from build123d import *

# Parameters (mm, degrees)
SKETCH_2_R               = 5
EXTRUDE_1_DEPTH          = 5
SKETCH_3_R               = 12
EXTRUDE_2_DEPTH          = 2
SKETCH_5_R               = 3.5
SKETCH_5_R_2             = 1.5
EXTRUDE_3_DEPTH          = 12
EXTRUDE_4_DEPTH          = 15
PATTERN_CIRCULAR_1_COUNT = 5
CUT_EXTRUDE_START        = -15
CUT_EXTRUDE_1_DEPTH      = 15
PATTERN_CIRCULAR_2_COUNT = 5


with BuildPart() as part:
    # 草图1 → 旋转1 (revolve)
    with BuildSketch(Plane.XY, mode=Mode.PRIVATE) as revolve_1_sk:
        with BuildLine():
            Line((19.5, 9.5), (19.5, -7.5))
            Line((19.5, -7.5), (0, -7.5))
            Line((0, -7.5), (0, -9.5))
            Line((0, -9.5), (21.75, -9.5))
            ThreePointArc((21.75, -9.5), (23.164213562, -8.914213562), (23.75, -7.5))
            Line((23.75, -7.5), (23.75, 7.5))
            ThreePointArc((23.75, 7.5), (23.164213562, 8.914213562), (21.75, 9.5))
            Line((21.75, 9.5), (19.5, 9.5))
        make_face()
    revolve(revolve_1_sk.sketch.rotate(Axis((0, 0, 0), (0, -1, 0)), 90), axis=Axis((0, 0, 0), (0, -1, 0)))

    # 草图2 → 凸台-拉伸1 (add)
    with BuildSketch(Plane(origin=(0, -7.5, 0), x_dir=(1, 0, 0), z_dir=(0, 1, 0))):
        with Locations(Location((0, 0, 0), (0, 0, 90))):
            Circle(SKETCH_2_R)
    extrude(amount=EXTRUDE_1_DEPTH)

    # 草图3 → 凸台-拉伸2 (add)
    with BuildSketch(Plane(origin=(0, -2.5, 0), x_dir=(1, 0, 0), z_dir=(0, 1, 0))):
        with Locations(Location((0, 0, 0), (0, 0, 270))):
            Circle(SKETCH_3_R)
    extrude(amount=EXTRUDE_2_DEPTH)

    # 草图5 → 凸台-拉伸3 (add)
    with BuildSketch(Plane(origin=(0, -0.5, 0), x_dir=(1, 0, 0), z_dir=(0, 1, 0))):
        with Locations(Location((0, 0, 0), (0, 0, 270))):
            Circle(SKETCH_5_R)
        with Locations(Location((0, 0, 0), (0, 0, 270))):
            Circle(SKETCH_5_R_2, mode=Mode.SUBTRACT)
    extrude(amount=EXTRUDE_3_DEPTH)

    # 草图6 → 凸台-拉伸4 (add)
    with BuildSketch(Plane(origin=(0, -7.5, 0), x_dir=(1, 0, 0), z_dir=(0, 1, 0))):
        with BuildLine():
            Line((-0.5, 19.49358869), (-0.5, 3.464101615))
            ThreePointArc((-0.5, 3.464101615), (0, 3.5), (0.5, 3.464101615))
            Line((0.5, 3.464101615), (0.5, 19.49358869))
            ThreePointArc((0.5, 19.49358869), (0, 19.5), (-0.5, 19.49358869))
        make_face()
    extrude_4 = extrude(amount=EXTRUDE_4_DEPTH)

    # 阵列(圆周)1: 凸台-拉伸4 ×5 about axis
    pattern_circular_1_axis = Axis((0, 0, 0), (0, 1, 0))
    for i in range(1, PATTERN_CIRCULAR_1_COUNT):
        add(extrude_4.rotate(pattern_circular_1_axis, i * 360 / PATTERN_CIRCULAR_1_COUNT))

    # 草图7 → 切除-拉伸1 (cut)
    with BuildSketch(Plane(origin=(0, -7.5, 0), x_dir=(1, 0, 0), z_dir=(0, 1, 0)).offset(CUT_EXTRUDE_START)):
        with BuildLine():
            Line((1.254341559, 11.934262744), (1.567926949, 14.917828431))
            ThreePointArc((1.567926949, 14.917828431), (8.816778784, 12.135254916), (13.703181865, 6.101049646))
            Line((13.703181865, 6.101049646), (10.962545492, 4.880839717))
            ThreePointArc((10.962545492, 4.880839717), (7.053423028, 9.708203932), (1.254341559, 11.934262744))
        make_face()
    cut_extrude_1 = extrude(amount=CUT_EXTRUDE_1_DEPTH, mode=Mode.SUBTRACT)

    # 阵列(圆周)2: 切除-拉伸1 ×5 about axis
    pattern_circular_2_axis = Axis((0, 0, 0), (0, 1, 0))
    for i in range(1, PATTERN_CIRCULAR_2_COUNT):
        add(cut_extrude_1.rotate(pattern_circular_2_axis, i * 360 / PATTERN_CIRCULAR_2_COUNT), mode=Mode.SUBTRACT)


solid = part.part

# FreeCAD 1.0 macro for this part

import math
import FreeCAD as App
import Part
import Sketcher
Q = App.Units.Quantity

doc = App.newDocument("Part")
params = doc.addObject("Spreadsheet::Sheet", "Params")
for row, (alias, value) in enumerate([
    ("sketch1_radius", "2 mm"),
    ("sketch1_height", "17 mm"),
    ("sketch1_width", "19.5 mm"),
    ("sketch1_width2", "21.75 mm"),
    ("revolution_angle", "360 deg"),
    ("sketch2_diameter", "10 mm"),
    ("pad1_length", "5 mm"),
    ("sketch3_diameter", "24 mm"),
    ("pad2_length", "2 mm"),
    ("sketch4_diameter", "7 mm"),
    ("sketch4_diameter2", "3 mm"),
    ("pad3_length", "12 mm"),
    ("sketch5_radius", "3.5 mm"),
    ("sketch5_radius2", "19.500001 mm"),
    ("pad4_length", "15 mm"),
    ("sketch6_radius", "12 mm"),
    ("sketch6_radius2", "15 mm"),
    ("pocket1_length", "15 mm"),
], start=1):
    params.set(f"A{row}", alias)
    params.set(f"B{row}", "=" + value)
    params.setAlias(f"B{row}", alias)

body = doc.addObject("PartDesign::Body", "Body")

sketch1 = body.newObject("Sketcher::SketchObject", "Sketch")
sketch1.AttachmentSupport = (doc.getObject("XY_Plane"), [""])
sketch1.MapMode = "FlatFace"
sketch1.addGeometry([
    Part.LineSegment(App.Vector(19.5, 9.5, 0), App.Vector(19.5, -7.5, 0)),
    Part.LineSegment(App.Vector(19.5, -7.5, 0), App.Vector(0, -7.5, 0)),
    Part.LineSegment(App.Vector(0, -7.5, 0), App.Vector(0, -9.5, 0)),
    Part.LineSegment(App.Vector(0, -9.5, 0), App.Vector(21.8, -9.5, 0)),
    Part.ArcOfCircle(Part.Circle(App.Vector(21.7, -7.5, 0), App.Vector(0, 0, 1), 2), math.radians(-90), math.radians(0)),
    Part.LineSegment(App.Vector(23.8, -7.5, 0), App.Vector(23.8, 7.5, 0)),
    Part.ArcOfCircle(Part.Circle(App.Vector(21.7, 7.5, 0), App.Vector(0, 0, 1), 2), math.radians(0), math.radians(90)),
    Part.LineSegment(App.Vector(21.8, 9.5, 0), App.Vector(19.5, 9.5, 0)),
], False)
sketch1.addConstraint([
    Sketcher.Constraint("Coincident", 0, 2, 1, 1),
    Sketcher.Constraint("Coincident", 1, 2, 2, 1),
    Sketcher.Constraint("Coincident", 2, 2, 3, 1),
    Sketcher.Constraint("Tangent", 3, 2, 4, 1),
    Sketcher.Constraint("Tangent", 4, 2, 5, 1),
    Sketcher.Constraint("Tangent", 5, 2, 6, 1),
    Sketcher.Constraint("Tangent", 6, 2, 7, 1),
    Sketcher.Constraint("Coincident", 7, 2, 0, 1),
    Sketcher.Constraint("Vertical", 0),
    Sketcher.Constraint("Horizontal", 1),
    Sketcher.Constraint("Vertical", 2),
    Sketcher.Constraint("Horizontal", 3),
    Sketcher.Constraint("Vertical", 5),
    Sketcher.Constraint("Horizontal", 7),
    Sketcher.Constraint("Equal", 4, 6),
    Sketcher.Constraint("PointOnObject", 1, 2, -2),
    Sketcher.Constraint("Horizontal", 4, 3, 0, 2),
    Sketcher.Constraint("Radius", 4, Q("2 mm")),
    Sketcher.Constraint("DistanceY", 0, 2, 0, 1, Q("17 mm")),
    Sketcher.Constraint("DistanceX", 1, 2, 1, 1, Q("19.5 mm")),
    Sketcher.Constraint("DistanceX", 3, 1, 3, 2, Q("21.75 mm")),
    Sketcher.Constraint("DistanceY", 4, 3, -1, 1, Q("7.5 mm")),
])
sketch1.setExpression("Constraints[17]", "Params.sketch1_radius")
sketch1.setExpression("Constraints[18]", "Params.sketch1_height")
sketch1.setExpression("Constraints[19]", "Params.sketch1_width")
sketch1.setExpression("Constraints[20]", "Params.sketch1_width2")
revolution = body.newObject("PartDesign::Revolution", "Revolution")
revolution.Profile = sketch1
revolution.ReferenceAxis = (sketch1, ["V_Axis"])
revolution.setExpression("Angle", "Params.revolution_angle")

sketch2 = body.newObject("Sketcher::SketchObject", "Sketch001")
sketch2.AttachmentSupport = (doc.getObject("XZ_Plane"), [""])
sketch2.MapMode = "FlatFace"
sketch2.AttachmentOffset = App.Placement(App.Vector(0, 0, 7.5), App.Rotation())
sketch2.addGeometry(Part.Circle(App.Vector(0, 0, 0), App.Vector(0, 0, 1), 5), False)
sketch2.addConstraint([
    Sketcher.Constraint("Coincident", 0, 3, -1, 1),
    Sketcher.Constraint("Diameter", 0, Q("10 mm")),
])
sketch2.setExpression("Constraints[1]", "Params.sketch2_diameter")
pad1 = body.newObject("PartDesign::Pad", "Pad")
pad1.Profile = sketch2
pad1.setExpression("Length", "Params.pad1_length")
pad1.Reversed = True

sketch3 = body.newObject("Sketcher::SketchObject", "Sketch002")
sketch3.AttachmentSupport = (doc.getObject("XZ_Plane"), [""])
sketch3.MapMode = "FlatFace"
sketch3.AttachmentOffset = App.Placement(App.Vector(0, 0, 2.5), App.Rotation())
sketch3.addGeometry(Part.Circle(App.Vector(0, 0, 0), App.Vector(0, 0, 1), 12), False)
sketch3.addConstraint([
    Sketcher.Constraint("Coincident", 0, 3, -1, 1),
    Sketcher.Constraint("Diameter", 0, Q("24 mm")),
])
sketch3.setExpression("Constraints[1]", "Params.sketch3_diameter")
pad2 = body.newObject("PartDesign::Pad", "Pad001")
pad2.Profile = sketch3
pad2.setExpression("Length", "Params.pad2_length")
pad2.Reversed = True

sketch4 = body.newObject("Sketcher::SketchObject", "Sketch003")
sketch4.AttachmentSupport = (doc.getObject("XZ_Plane"), [""])
sketch4.MapMode = "FlatFace"
sketch4.AttachmentOffset = App.Placement(App.Vector(0, 0, 0.5), App.Rotation())
sketch4.addGeometry([
    Part.Circle(App.Vector(0, 0, 0), App.Vector(0, 0, 1), 3.5),
    Part.Circle(App.Vector(0, 0, 0), App.Vector(0, 0, 1), 1.5),
], False)
sketch4.addConstraint([
    Sketcher.Constraint("Coincident", 0, 3, -1, 1),
    Sketcher.Constraint("Coincident", 1, 3, -1, 1),
    Sketcher.Constraint("Diameter", 0, Q("7 mm")),
    Sketcher.Constraint("Diameter", 1, Q("3 mm")),
])
sketch4.setExpression("Constraints[2]", "Params.sketch4_diameter")
sketch4.setExpression("Constraints[3]", "Params.sketch4_diameter2")
pad3 = body.newObject("PartDesign::Pad", "Pad002")
pad3.Profile = sketch4
pad3.setExpression("Length", "Params.pad3_length")
pad3.Reversed = True

sketch5 = body.newObject("Sketcher::SketchObject", "Sketch004")
sketch5.AttachmentSupport = (doc.getObject("XZ_Plane"), [""])
sketch5.MapMode = "FlatFace"
sketch5.AttachmentOffset = App.Placement(App.Vector(0, 0, 7.5), App.Rotation())
sketch5.addGeometry([
    Part.LineSegment(App.Vector(-0.5, -19.5, 0), App.Vector(-0.5, -3.5, 0)),
    Part.ArcOfCircle(Part.Circle(App.Vector(0, 0, 0), App.Vector(0, 0, 1), 3.5), math.radians(-98.21), math.radians(-81.79)),
    Part.LineSegment(App.Vector(0.5, -3.5, 0), App.Vector(0.5, -19.5, 0)),
    Part.ArcOfCircle(Part.Circle(App.Vector(0, 0, 0), App.Vector(0, 0, 1), 19.5), math.radians(-91.47), math.radians(-88.53)),
], False)
sketch5.addConstraint([
    Sketcher.Constraint("Coincident", 0, 2, 1, 1),
    Sketcher.Constraint("Coincident", 1, 2, 2, 1),
    Sketcher.Constraint("Coincident", 2, 2, 3, 2),
    Sketcher.Constraint("Coincident", 3, 1, 0, 1),
    Sketcher.Constraint("Vertical", 0),
    Sketcher.Constraint("Vertical", 2),
    Sketcher.Constraint("Coincident", 1, 3, -1, 1),
    Sketcher.Constraint("Coincident", 3, 3, -1, 1),
    Sketcher.Constraint("Horizontal", 0, 2, 1, 2),
    Sketcher.Constraint("Radius", 1, Q("3.5 mm")),
    Sketcher.Constraint("Radius", 3, Q("19.500001 mm")),
    Sketcher.Constraint("DistanceX", 0, 2, 1, 2, Q("1 mm")),
])
sketch5.setExpression("Constraints[9]", "Params.sketch5_radius")
sketch5.setExpression("Constraints[10]", "Params.sketch5_radius2")
pad4 = body.newObject("PartDesign::Pad", "Pad003")
pad4.Profile = sketch5
pad4.setExpression("Length", "Params.pad4_length")
pad4.Reversed = True
doc.recompute()

polarpattern = body.newObject("PartDesign::PolarPattern", "PolarPattern")
polarpattern.Originals = [pad4]
polarpattern.Axis = (doc.getObject("Y_Axis"), [""])
polarpattern.Angle = 360
polarpattern.Occurrences = 5
body.Tip = polarpattern

sketch6 = body.newObject("Sketcher::SketchObject", "Sketch005")
sketch6.AttachmentSupport = (doc.getObject("XZ_Plane"), [""])
sketch6.MapMode = "FlatFace"
sketch6.AttachmentOffset = App.Placement(App.Vector(0, 0, 22.5), App.Rotation())
sketch6.addGeometry([
    Part.LineSegment(App.Vector(1.6, -14.9, 0), App.Vector(1.3, -11.9, 0)),
    Part.ArcOfCircle(Part.Circle(App.Vector(0, 0, 0), App.Vector(0, 0, 1), 12), math.radians(-84), math.radians(-24)),
    Part.LineSegment(App.Vector(11, -4.9, 0), App.Vector(13.7, -6.1, 0)),
    Part.ArcOfCircle(Part.Circle(App.Vector(0, 0, 0), App.Vector(0, 0, 1), 15), math.radians(-84), math.radians(-24)),
], False)
sketch6.addConstraint([
    Sketcher.Constraint("Coincident", 0, 2, 1, 1),
    Sketcher.Constraint("Coincident", 1, 2, 2, 1),
    Sketcher.Constraint("Coincident", 2, 2, 3, 2),
    Sketcher.Constraint("Coincident", 3, 1, 0, 1),
    Sketcher.Constraint("Coincident", 1, 3, -1, 1),
    Sketcher.Constraint("Coincident", 3, 3, -1, 1),
    Sketcher.Constraint("Radius", 1, Q("12 mm")),
    Sketcher.Constraint("Radius", 3, Q("15 mm")),
    Sketcher.Constraint("Angle", 0, Q("96 deg")),
    Sketcher.Constraint("Angle", 2, Q("-24 deg")),
    Sketcher.Constraint("DistanceX", -1, 1, 0, 2, Q("1.254342 mm")),
    Sketcher.Constraint("DistanceY", 1, 2, -1, 1, Q("4.88084 mm")),
])
sketch6.setExpression("Constraints[6]", "Params.sketch6_radius")
sketch6.setExpression("Constraints[7]", "Params.sketch6_radius2")
pocket1 = body.newObject("PartDesign::Pocket", "Pocket")
pocket1.Profile = sketch6
pocket1.setExpression("Length", "Params.pocket1_length")
doc.recompute()

polarpattern2 = body.newObject("PartDesign::PolarPattern", "PolarPattern001")
polarpattern2.Originals = [pocket1]
polarpattern2.Axis = (doc.getObject("Y_Axis"), [""])
polarpattern2.Angle = 360
polarpattern2.Occurrences = 5
body.Tip = polarpattern2

doc.recompute()
